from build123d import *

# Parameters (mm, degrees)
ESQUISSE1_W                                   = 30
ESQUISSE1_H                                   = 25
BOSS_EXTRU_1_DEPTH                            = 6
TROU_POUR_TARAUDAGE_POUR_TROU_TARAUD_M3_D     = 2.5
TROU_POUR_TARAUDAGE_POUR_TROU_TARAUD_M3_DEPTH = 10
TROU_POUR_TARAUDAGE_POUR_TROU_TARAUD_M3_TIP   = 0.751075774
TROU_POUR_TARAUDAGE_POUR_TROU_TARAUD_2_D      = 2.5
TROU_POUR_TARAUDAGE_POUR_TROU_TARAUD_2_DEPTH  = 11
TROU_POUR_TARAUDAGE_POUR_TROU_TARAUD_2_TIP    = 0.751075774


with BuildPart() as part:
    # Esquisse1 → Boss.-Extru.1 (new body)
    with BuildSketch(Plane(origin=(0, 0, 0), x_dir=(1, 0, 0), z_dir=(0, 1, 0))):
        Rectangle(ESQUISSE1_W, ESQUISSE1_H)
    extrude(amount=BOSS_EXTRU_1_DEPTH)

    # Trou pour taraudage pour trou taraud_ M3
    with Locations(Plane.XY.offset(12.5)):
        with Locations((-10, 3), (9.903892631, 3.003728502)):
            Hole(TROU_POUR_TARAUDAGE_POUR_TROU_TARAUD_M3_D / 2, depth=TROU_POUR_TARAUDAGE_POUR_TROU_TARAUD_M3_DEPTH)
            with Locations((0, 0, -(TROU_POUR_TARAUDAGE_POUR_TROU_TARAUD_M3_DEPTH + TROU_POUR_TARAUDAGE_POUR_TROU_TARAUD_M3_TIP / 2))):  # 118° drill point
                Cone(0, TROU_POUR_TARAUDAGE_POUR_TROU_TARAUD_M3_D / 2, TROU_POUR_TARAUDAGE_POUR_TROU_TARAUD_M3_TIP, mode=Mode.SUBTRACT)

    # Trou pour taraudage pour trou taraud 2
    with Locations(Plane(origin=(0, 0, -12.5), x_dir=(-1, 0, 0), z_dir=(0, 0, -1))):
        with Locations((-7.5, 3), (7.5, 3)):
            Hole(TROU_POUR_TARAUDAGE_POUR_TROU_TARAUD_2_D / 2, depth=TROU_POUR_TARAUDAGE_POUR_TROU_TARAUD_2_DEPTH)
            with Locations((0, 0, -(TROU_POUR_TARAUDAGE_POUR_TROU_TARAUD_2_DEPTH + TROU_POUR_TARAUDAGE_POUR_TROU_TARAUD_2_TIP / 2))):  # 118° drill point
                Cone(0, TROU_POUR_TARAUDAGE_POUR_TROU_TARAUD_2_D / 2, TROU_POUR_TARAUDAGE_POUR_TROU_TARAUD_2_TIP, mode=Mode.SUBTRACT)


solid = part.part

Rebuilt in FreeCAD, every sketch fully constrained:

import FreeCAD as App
import Part
import Sketcher

V = App.Vector
Q = App.Units.Quantity

doc = App.newDocument("Part")
body = doc.addObject("PartDesign::Body", "Body")

sketch1 = body.newObject("Sketcher::SketchObject", "Sketch")
sketch1.AttachmentSupport = (doc.getObject("XZ_Plane"), [""])
sketch1.MapMode = "FlatFace"
sketch1.addGeometry(Part.LineSegment(V(-15, -12, 0), V(-15, 12, 0)), False)
sketch1.addGeometry(Part.LineSegment(V(-15, 12, 0), V(15, 12, 0)), False)
sketch1.addGeometry(Part.LineSegment(V(15, 12, 0), V(15, -12, 0)), False)
sketch1.addGeometry(Part.LineSegment(V(15, -12, 0), V(-15, -12, 0)), False)
sketch1.addConstraint(Sketcher.Constraint("Coincident", 0, 2, 1, 1))
sketch1.addConstraint(Sketcher.Constraint("Coincident", 1, 2, 2, 1))
sketch1.addConstraint(Sketcher.Constraint("Coincident", 2, 2, 3, 1))
sketch1.addConstraint(Sketcher.Constraint("Coincident", 3, 2, 0, 1))
sketch1.addConstraint(Sketcher.Constraint("Vertical", 0))
sketch1.addConstraint(Sketcher.Constraint("Horizontal", 1))
sketch1.addConstraint(Sketcher.Constraint("Vertical", 2))
sketch1.addConstraint(Sketcher.Constraint("Horizontal", 3))
sketch1.addConstraint(Sketcher.Constraint("Symmetric", 0, 2, 2, 2, -1, 1))
sketch1.addConstraint(Sketcher.Constraint("DistanceX", 1, 1, 1, 2, Q("30 mm")))
sketch1.addConstraint(Sketcher.Constraint("DistanceY", 0, 1, 0, 2, Q("25 mm")))
pad1 = body.newObject("PartDesign::Pad", "Pad")
pad1.Profile = sketch1
pad1.Length = 6
pad1.Reversed = True

sketch2 = body.newObject("Sketcher::SketchObject", "Sketch001")
sketch2.AttachmentSupport = (doc.getObject("XY_Plane"), [""])
sketch2.MapMode = "FlatFace"
sketch2.AttachmentOffset = App.Placement(V(0, 0, 12.5), App.Rotation())
sketch2.addGeometry(Part.Circle(V(-10, 3, 0), V(0, 0, 1), 1.2), False)
sketch2.addGeometry(Part.Circle(V(9.9, 3, 0), V(0, 0, 1), 1.2), False)
sketch2.addConstraint(Sketcher.Constraint("Equal", 0, 1))
sketch2.addConstraint(Sketcher.Constraint("Diameter", 0, Q("2.5 mm")))
sketch2.addConstraint(Sketcher.Constraint("DistanceX", 0, 3, -1, 1, Q("10 mm")))
sketch2.addConstraint(Sketcher.Constraint("DistanceY", -1, 1, 0, 3, Q("3 mm")))
sketch2.addConstraint(Sketcher.Constraint("DistanceY", -1, 1, 1, 3, Q("3.003729 mm")))
sketch2.addConstraint(Sketcher.Constraint("DistanceX", -1, 1, 1, 3, Q("9.903893 mm")))
doc.recompute()
hole = body.newObject("PartDesign::Hole", "Hole")
hole.Profile = sketch2
hole.ThreadType = "None"
hole.Diameter = 2.5
hole.DepthType = "Dimension"
hole.Depth = 10
hole.DrillPoint = "Angled"
hole.DrillPointAngle = 118

sketch3 = body.newObject("Sketcher::SketchObject", "Sketch002")
sketch3.AttachmentSupport = (doc.getObject("XY_Plane"), [""])
sketch3.MapMode = "FlatFace"
sketch3.AttachmentOffset = App.Placement(V(0, 0, -12.5), App.Rotation())
sketch3.addGeometry(Part.Circle(V(7.5, 3, 0), V(0, 0, 1), 1.2), False)
sketch3.addGeometry(Part.Circle(V(-7.5, 3, 0), V(0, 0, 1), 1.2), False)
sketch3.addConstraint(Sketcher.Constraint("Equal", 0, 1))
sketch3.addConstraint(Sketcher.Constraint("Symmetric", 0, 3, 1, 3, -2))
sketch3.addConstraint(Sketcher.Constraint("Diameter", 0, Q("2.5 mm")))
sketch3.addConstraint(Sketcher.Constraint("DistanceY", -1, 1, 0, 3, Q("3 mm")))
sketch3.addConstraint(Sketcher.Constraint("DistanceX", 1, 3, 0, 3, Q("15 mm")))
doc.recompute()
hole2 = body.newObject("PartDesign::Hole", "Hole001")
hole2.Profile = sketch3
hole2.ThreadType = "None"
hole2.Diameter = 2.5
hole2.DepthType = "Dimension"
hole2.Depth = 11
hole2.DrillPoint = "Angled"
hole2.DrillPointAngle = 118
hole2.Reversed = True

doc.recompute()
